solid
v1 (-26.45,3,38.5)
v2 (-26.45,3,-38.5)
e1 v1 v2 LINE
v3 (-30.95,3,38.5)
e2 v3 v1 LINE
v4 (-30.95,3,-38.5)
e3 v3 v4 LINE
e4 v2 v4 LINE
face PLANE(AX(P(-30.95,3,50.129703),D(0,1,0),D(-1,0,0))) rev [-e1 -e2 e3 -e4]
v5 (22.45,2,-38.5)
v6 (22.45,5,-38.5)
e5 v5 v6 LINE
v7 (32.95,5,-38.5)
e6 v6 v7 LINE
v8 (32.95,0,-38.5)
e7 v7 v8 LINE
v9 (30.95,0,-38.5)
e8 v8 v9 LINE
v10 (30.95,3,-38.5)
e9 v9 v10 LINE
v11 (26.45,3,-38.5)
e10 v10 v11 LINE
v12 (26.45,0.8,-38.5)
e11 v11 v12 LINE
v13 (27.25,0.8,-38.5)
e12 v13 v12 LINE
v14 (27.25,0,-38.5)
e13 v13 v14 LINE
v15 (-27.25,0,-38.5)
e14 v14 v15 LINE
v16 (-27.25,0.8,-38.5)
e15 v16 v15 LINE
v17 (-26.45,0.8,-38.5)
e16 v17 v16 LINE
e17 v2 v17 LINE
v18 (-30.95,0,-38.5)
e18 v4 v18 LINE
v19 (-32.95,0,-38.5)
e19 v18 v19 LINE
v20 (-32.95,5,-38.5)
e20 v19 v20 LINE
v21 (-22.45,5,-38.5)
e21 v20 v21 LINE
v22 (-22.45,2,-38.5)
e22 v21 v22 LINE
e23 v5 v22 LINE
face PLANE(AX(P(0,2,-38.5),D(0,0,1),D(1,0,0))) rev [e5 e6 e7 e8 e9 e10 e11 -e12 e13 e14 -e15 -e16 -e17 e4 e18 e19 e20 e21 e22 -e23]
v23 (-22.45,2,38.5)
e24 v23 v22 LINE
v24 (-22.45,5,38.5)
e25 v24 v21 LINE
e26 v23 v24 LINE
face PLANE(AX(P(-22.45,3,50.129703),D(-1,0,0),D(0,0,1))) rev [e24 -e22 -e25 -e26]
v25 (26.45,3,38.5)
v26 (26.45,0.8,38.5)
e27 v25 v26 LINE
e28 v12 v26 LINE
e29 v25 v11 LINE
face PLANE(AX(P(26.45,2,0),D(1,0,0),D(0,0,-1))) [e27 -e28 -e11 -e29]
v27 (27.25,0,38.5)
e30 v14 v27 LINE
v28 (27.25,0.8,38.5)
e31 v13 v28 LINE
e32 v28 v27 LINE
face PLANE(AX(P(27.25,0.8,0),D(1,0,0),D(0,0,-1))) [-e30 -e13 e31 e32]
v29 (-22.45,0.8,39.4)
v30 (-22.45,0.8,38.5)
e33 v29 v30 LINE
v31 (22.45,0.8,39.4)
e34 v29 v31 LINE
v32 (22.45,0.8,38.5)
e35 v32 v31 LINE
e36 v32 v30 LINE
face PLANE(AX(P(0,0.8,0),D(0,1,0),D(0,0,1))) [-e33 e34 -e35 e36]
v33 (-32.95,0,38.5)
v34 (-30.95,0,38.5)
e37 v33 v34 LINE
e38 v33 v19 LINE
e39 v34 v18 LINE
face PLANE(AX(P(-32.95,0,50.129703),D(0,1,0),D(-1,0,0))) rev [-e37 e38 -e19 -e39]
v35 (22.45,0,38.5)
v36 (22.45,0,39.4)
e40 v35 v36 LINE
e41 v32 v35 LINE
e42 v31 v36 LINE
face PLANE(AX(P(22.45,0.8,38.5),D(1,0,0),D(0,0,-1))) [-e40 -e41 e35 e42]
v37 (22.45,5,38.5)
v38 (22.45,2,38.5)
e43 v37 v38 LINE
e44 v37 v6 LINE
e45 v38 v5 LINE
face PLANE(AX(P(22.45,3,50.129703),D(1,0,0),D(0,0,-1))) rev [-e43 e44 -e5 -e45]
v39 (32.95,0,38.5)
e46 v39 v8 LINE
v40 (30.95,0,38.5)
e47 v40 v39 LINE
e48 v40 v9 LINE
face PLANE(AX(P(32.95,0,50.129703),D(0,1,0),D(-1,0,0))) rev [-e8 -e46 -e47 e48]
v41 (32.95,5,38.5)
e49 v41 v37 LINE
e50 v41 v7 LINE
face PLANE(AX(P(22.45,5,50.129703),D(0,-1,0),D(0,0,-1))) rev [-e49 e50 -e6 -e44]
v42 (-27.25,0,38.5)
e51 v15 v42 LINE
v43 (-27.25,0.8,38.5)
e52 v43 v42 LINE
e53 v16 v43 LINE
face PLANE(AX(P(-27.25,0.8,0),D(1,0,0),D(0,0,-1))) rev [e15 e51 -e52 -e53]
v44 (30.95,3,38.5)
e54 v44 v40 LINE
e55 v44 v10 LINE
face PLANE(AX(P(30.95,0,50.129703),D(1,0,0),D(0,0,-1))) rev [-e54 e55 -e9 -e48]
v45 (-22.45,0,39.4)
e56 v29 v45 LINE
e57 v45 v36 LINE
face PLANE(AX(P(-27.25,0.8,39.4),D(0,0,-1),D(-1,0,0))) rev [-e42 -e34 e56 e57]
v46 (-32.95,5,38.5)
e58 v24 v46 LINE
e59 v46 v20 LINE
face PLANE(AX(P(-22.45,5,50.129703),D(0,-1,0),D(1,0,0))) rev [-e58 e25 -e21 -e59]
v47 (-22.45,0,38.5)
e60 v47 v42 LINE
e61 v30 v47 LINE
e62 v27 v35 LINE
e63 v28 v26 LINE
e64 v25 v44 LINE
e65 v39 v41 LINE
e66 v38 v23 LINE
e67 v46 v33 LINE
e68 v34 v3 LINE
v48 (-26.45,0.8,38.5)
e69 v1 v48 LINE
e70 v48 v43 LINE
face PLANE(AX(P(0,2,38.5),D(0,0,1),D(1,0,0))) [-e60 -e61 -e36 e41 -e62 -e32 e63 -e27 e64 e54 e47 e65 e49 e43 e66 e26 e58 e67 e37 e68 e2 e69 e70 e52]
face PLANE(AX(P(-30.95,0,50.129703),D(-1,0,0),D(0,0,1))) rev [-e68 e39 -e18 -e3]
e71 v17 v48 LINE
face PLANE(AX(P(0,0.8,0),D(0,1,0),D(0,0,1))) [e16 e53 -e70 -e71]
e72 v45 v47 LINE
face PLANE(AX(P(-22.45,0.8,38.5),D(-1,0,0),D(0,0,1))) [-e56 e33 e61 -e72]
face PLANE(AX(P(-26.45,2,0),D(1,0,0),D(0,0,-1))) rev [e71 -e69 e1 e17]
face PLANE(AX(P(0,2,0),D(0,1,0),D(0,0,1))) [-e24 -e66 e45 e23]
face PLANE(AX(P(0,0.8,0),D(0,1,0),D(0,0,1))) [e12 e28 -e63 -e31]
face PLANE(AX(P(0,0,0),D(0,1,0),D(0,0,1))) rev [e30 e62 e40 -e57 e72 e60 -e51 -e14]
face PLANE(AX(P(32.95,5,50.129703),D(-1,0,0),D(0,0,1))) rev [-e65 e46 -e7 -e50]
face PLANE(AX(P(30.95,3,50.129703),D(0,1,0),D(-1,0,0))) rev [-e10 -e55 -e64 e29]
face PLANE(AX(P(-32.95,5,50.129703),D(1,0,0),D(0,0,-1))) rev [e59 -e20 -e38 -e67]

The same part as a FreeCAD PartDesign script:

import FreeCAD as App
import Part
import Sketcher
from FreeCAD import Vector
Q = App.Units.Quantity

doc = App.newDocument("Part")
body = doc.addObject("PartDesign::Body", "Body")

sketch1 = body.newObject("Sketcher::SketchObject", "Sketch")
sketch1.AttachmentSupport = (doc.getObject("XZ_Plane"), [""])
sketch1.MapMode = "FlatFace"
sketch1.addGeometry([
    Part.LineSegment(Vector(-26.45, -38.5, 0), Vector(-26.45, 38.5, 0)),
    Part.LineSegment(Vector(-26.45, 38.5, 0), Vector(26.45, 38.5, 0)),
    Part.LineSegment(Vector(26.45, 38.5, 0), Vector(26.45, -38.5, 0)),
    Part.LineSegment(Vector(26.45, -38.5, 0), Vector(-26.45, -38.5, 0)),
], False)
sketch1.addConstraint([
    Sketcher.Constraint("Coincident", 0, 2, 1, 1),
    Sketcher.Constraint("Coincident", 1, 2, 2, 1),
    Sketcher.Constraint("Coincident", 2, 2, 3, 1),
    Sketcher.Constraint("Coincident", 3, 2, 0, 1),
    Sketcher.Constraint("Vertical", 0),
    Sketcher.Constraint("Horizontal", 1),
    Sketcher.Constraint("Vertical", 2),
    Sketcher.Constraint("Horizontal", 3),
    Sketcher.Constraint("Symmetric", 0, 2, 2, 2, -1, 1),
    Sketcher.Constraint("DistanceY", 0, 1, 0, 2, Q("77 mm")),
    Sketcher.Constraint("DistanceX", 1, 1, 1, 2, Q("52.9 mm")),
])
pad1 = body.newObject("PartDesign::Pad", "Pad")
pad1.Profile = sketch1
pad1.Length = 2
pad1.Reversed = True

sketch2 = body.newObject("Sketcher::SketchObject", "Sketch001")
sketch2.AttachmentSupport = (doc.getObject("XZ_Plane"), [""])
sketch2.MapMode = "FlatFace"
sketch2.addGeometry([
    Part.LineSegment(Vector(26.45, -38.5, 0), Vector(26.45, 38.5, 0)),
    Part.LineSegment(Vector(26.45, 38.5, 0), Vector(27.25, 38.5, 0)),
    Part.LineSegment(Vector(27.25, 38.5, 0), Vector(27.25, -38.5, 0)),
    Part.LineSegment(Vector(27.25, -38.5, 0), Vector(26.45, -38.5, 0)),
    Part.LineSegment(Vector(-27.25, -38.5, 0), Vector(-27.25, 38.5, 0)),
    Part.LineSegment(Vector(-27.25, 38.5, 0), Vector(-26.45, 38.5, 0)),
    Part.LineSegment(Vector(-26.45, 38.5, 0), Vector(-26.45, -38.5, 0)),
    Part.LineSegment(Vector(-26.45, -38.5, 0), Vector(-27.25, -38.5, 0)),
], False)
sketch2.addConstraint([
    Sketcher.Constraint("Coincident", 0, 2, 1, 1),
    Sketcher.Constraint("Coincident", 1, 2, 2, 1),
    Sketcher.Constraint("Coincident", 2, 2, 3, 1),
    Sketcher.Constraint("Coincident", 3, 2, 0, 1),
    Sketcher.Constraint("Coincident", 4, 2, 5, 1),
    Sketcher.Constraint("Coincident", 5, 2, 6, 1),
    Sketcher.Constraint("Coincident", 6, 2, 7, 1),
    Sketcher.Constraint("Coincident", 7, 2, 4, 1),
    Sketcher.Constraint("Vertical", 0),
    Sketcher.Constraint("Horizontal", 1),
    Sketcher.Constraint("Vertical", 2),
    Sketcher.Constraint("Horizontal", 3),
    Sketcher.Constraint("Vertical", 4),
    Sketcher.Constraint("Horizontal", 5),
    Sketcher.Constraint("Vertical", 6),
    Sketcher.Constraint("Horizontal", 7),
    Sketcher.Constraint("Symmetric", 2, 2, 4, 2, -1, 1),
    Sketcher.Constraint("Symmetric", 0, 2, 6, 2, -1, 1),
    Sketcher.Constraint("Horizontal", 1, 2, 4, 2),
    Sketcher.Constraint("DistanceY", 0, 1, 0, 2, Q("77 mm")),
    Sketcher.Constraint("DistanceX", 1, 1, 1, 2, Q("0.8 mm")),
    Sketcher.Constraint("DistanceX", 4, 2, 0, 2, Q("53.7 mm")),
])
pad2 = body.newObject("PartDesign::Pad", "Pad001")
pad2.Profile = sketch2
pad2.Length = 0.8
pad2.Reversed = True

sketch3 = body.newObject("Sketcher::SketchObject", "Sketch002")
sketch3.AttachmentSupport = (doc.getObject("XZ_Plane"), [""])
sketch3.MapMode = "FlatFace"
sketch3.addGeometry([
    Part.LineSegment(Vector(-27.25, 38.5, 0), Vector(-27.25, 39.4, 0)),
    Part.LineSegment(Vector(-27.25, 39.4, 0), Vector(27.25, 39.4, 0)),
    Part.LineSegment(Vector(27.25, 39.4, 0), Vector(27.25, 38.5, 0)),
    Part.LineSegment(Vector(27.25, 38.5, 0), Vector(-27.25, 38.5, 0)),
], False)
sketch3.addConstraint([
    Sketcher.Constraint("Coincident", 0, 2, 1, 1),
    Sketcher.Constraint("Coincident", 1, 2, 2, 1),
    Sketcher.Constraint("Coincident", 2, 2, 3, 1),
    Sketcher.Constraint("Coincident", 3, 2, 0, 1),
    Sketcher.Constraint("Vertical", 0),
    Sketcher.Constraint("Horizontal", 1),
    Sketcher.Constraint("Vertical", 2),
    Sketcher.Constraint("Horizontal", 3),
    Sketcher.Constraint("DistanceX", 1, 1, 1, 2, Q("54.5 mm")),
    Sketcher.Constraint("DistanceY", 0, 1, 0, 2, Q("0.9 mm")),
    Sketcher.Constraint("DistanceY", -1, 1, 0, 2, Q("39.4 mm")),
    Sketcher.Constraint("DistanceX", 0, 2, -1, 1, Q("27.25 mm")),
])
pad3 = body.newObject("PartDesign::Pad", "Pad002")
pad3.Profile = sketch3
pad3.Length = 0.8
pad3.Reversed = True

sketch4 = body.newObject("Sketcher::SketchObject", "Sketch003")
sketch4.AttachmentSupport = (doc.getObject("XZ_Plane"), [""])
sketch4.MapMode = "FlatFace"
sketch4.addGeometry([
    Part.LineSegment(Vector(-27.25, 38.5, 0), Vector(-27.25, 39.4, 0)),
    Part.LineSegment(Vector(-27.25, 39.4, 0), Vector(-22.45, 39.4, 0)),
    Part.LineSegment(Vector(-22.45, 39.4, 0), Vector(-22.45, 38.5, 0)),
    Part.LineSegment(Vector(-22.45, 38.5, 0), Vector(-27.25, 38.5, 0)),
    Part.LineSegment(Vector(22.45, 38.5, 0), Vector(22.45, 39.4, 0)),
    Part.LineSegment(Vector(22.45, 39.4, 0), Vector(27.25, 39.4, 0)),
    Part.LineSegment(Vector(27.25, 39.4, 0), Vector(27.25, 38.5, 0)),
    Part.LineSegment(Vector(27.25, 38.5, 0), Vector(22.45, 38.5, 0)),
], False)
sketch4.addConstraint([
    Sketcher.Constraint("Coincident", 0, 2, 1, 1),
    Sketcher.Constraint("Coincident", 1, 2, 2, 1),
    Sketcher.Constraint("Coincident", 2, 2, 3, 1),
    Sketcher.Constraint("Coincident", 3, 2, 0, 1),
    Sketcher.Constraint("Coincident", 4, 2, 5, 1),
    Sketcher.Constraint("Coincident", 5, 2, 6, 1),
    Sketcher.Constraint("Coincident", 6, 2, 7, 1),
    Sketcher.Constraint("Coincident", 7, 2, 4, 1),
    Sketcher.Constraint("Vertical", 0),
    Sketcher.Constraint("Horizontal", 1),
    Sketcher.Constraint("Vertical", 2),
    Sketcher.Constraint("Horizontal", 3),
    Sketcher.Constraint("Vertical", 4),
    Sketcher.Constraint("Horizontal", 5),
    Sketcher.Constraint("Vertical", 6),
    Sketcher.Constraint("Horizontal", 7),
    Sketcher.Constraint("Symmetric", 1, 2, 4, 2, -2),
    Sketcher.Constraint("Symmetric", 3, 2, 6, 2, -2),
    Sketcher.Constraint("DistanceX", 1, 1, 1, 2, Q("4.8 mm")),
    Sketcher.Constraint("DistanceY", 0, 1, 0, 2, Q("0.9 mm")),
    Sketcher.Constraint("DistanceY", -1, 1, 0, 2, Q("39.4 mm")),
    Sketcher.Constraint("DistanceX", 1, 2, 4, 2, Q("44.9 mm")),
])
pocket1 = body.newObject("PartDesign::Pocket", "Pocket")
pocket1.Profile = sketch4
pocket1.Length = 0.8

sketch5 = body.newObject("Sketcher::SketchObject", "Sketch004")
sketch5.AttachmentSupport = (doc.getObject("XY_Plane"), [""])
sketch5.MapMode = "FlatFace"
sketch5.AttachmentOffset = App.Placement(Vector(0, 0, -38.5), App.Rotation())
sketch5.addGeometry([
    Part.LineSegment(Vector(22.45, 5, 0), Vector(22.45, 2, 0)),
    Part.LineSegment(Vector(22.45, 2, 0), Vector(26.45, 2, 0)),
    Part.LineSegment(Vector(26.45, 2, 0), Vector(26.45, 3, 0)),
    Part.LineSegment(Vector(26.45, 3, 0), Vector(30.95, 3, 0)),
    Part.LineSegment(Vector(30.95, 3, 0), Vector(30.95, 0, 0)),
    Part.LineSegment(Vector(30.95, 0, 0), Vector(32.95, 0, 0)),
    Part.LineSegment(Vector(32.95, 0, 0), Vector(32.95, 5, 0)),
    Part.LineSegment(Vector(32.95, 5, 0), Vector(22.45, 5, 0)),
    Part.LineSegment(Vector(-30.95, 0, 0), Vector(-30.95, 3, 0)),
    Part.LineSegment(Vector(-30.95, 3, 0), Vector(-26.45, 3, 0)),
    Part.LineSegment(Vector(-26.45, 3, 0), Vector(-26.45, 2, 0)),
    Part.LineSegment(Vector(-26.45, 2, 0), Vector(-22.45, 2, 0)),
    Part.LineSegment(Vector(-22.45, 2, 0), Vector(-22.45, 5, 0)),
    Part.LineSegment(Vector(-22.45, 5, 0), Vector(-32.95, 5, 0)),
    Part.LineSegment(Vector(-32.95, 5, 0), Vector(-32.95, 0, 0)),
    Part.LineSegment(Vector(-32.95, 0, 0), Vector(-30.95, 0, 0)),
], False)
sketch5.addConstraint([
    Sketcher.Constraint("Coincident", 0, 2, 1, 1),
    Sketcher.Constraint("Coincident", 1, 2, 2, 1),
    Sketcher.Constraint("Coincident", 2, 2, 3, 1),
    Sketcher.Constraint("Coincident", 3, 2, 4, 1),
    Sketcher.Constraint("Coincident", 4, 2, 5, 1),
    Sketcher.Constraint("Coincident", 5, 2, 6, 1),
    Sketcher.Constraint("Coincident", 6, 2, 7, 1),
    Sketcher.Constraint("Coincident", 7, 2, 0, 1),
    Sketcher.Constraint("Coincident", 8, 2, 9, 1),
    Sketcher.Constraint("Coincident", 9, 2, 10, 1),
    Sketcher.Constraint("Coincident", 10, 2, 11, 1),
    Sketcher.Constraint("Coincident", 11, 2, 12, 1),
    Sketcher.Constraint("Coincident", 12, 2, 13, 1),
    Sketcher.Constraint("Coincident", 13, 2, 14, 1),
    Sketcher.Constraint("Coincident", 14, 2, 15, 1),
    Sketcher.Constraint("Coincident", 15, 2, 8, 1),
    Sketcher.Constraint("Vertical", 0),
    Sketcher.Constraint("Horizontal", 1),
    Sketcher.Constraint("Vertical", 2),
    Sketcher.Constraint("Horizontal", 3),
    Sketcher.Constraint("Vertical", 4),
    Sketcher.Constraint("Horizontal", 5),
    Sketcher.Constraint("Vertical", 6),
    Sketcher.Constraint("Horizontal", 7),
    Sketcher.Constraint("Vertical", 8),
    Sketcher.Constraint("Horizontal", 9),
    Sketcher.Constraint("Vertical", 10),
    Sketcher.Constraint("Horizontal", 11),
    Sketcher.Constraint("Vertical", 12),
    Sketcher.Constraint("Horizontal", 13),
    Sketcher.Constraint("Vertical", 14),
    Sketcher.Constraint("Horizontal", 15),
    Sketcher.Constraint("Symmetric", 5, 2, 14, 2, -1, 1),
    Sketcher.Constraint("Symmetric", 3, 2, 8, 2, -2),
    Sketcher.Constraint("Symmetric", 1, 2, 10, 2, -2),
    Sketcher.Constraint("Symmetric", 7, 2, 12, 2, -2),
    Sketcher.Constraint("PointOnObject", 4, 2, -1),
    Sketcher.Constraint("Equal", 0, 4),
    Sketcher.Constraint("DistanceX", 1, 1, 1, 2, Q("4 mm")),
    Sketcher.Constraint("DistanceX", 5, 1, 5, 2, Q("2 mm")),
    Sketcher.Constraint("DistanceY", 0, 2, 0, 1, Q("3 mm")),
    Sketcher.Constraint("DistanceY", 2, 1, 2, 2, Q("1 mm")),
    Sketcher.Constraint("DistanceX", 3, 1, 3, 2, Q("4.5 mm")),
    Sketcher.Constraint("DistanceX", 8, 2, 0, 2, Q("53.4 mm")),
])
pad4 = body.newObject("PartDesign::Pad", "Pad003")
pad4.Profile = sketch5
pad4.Length = 77

doc.recompute()
